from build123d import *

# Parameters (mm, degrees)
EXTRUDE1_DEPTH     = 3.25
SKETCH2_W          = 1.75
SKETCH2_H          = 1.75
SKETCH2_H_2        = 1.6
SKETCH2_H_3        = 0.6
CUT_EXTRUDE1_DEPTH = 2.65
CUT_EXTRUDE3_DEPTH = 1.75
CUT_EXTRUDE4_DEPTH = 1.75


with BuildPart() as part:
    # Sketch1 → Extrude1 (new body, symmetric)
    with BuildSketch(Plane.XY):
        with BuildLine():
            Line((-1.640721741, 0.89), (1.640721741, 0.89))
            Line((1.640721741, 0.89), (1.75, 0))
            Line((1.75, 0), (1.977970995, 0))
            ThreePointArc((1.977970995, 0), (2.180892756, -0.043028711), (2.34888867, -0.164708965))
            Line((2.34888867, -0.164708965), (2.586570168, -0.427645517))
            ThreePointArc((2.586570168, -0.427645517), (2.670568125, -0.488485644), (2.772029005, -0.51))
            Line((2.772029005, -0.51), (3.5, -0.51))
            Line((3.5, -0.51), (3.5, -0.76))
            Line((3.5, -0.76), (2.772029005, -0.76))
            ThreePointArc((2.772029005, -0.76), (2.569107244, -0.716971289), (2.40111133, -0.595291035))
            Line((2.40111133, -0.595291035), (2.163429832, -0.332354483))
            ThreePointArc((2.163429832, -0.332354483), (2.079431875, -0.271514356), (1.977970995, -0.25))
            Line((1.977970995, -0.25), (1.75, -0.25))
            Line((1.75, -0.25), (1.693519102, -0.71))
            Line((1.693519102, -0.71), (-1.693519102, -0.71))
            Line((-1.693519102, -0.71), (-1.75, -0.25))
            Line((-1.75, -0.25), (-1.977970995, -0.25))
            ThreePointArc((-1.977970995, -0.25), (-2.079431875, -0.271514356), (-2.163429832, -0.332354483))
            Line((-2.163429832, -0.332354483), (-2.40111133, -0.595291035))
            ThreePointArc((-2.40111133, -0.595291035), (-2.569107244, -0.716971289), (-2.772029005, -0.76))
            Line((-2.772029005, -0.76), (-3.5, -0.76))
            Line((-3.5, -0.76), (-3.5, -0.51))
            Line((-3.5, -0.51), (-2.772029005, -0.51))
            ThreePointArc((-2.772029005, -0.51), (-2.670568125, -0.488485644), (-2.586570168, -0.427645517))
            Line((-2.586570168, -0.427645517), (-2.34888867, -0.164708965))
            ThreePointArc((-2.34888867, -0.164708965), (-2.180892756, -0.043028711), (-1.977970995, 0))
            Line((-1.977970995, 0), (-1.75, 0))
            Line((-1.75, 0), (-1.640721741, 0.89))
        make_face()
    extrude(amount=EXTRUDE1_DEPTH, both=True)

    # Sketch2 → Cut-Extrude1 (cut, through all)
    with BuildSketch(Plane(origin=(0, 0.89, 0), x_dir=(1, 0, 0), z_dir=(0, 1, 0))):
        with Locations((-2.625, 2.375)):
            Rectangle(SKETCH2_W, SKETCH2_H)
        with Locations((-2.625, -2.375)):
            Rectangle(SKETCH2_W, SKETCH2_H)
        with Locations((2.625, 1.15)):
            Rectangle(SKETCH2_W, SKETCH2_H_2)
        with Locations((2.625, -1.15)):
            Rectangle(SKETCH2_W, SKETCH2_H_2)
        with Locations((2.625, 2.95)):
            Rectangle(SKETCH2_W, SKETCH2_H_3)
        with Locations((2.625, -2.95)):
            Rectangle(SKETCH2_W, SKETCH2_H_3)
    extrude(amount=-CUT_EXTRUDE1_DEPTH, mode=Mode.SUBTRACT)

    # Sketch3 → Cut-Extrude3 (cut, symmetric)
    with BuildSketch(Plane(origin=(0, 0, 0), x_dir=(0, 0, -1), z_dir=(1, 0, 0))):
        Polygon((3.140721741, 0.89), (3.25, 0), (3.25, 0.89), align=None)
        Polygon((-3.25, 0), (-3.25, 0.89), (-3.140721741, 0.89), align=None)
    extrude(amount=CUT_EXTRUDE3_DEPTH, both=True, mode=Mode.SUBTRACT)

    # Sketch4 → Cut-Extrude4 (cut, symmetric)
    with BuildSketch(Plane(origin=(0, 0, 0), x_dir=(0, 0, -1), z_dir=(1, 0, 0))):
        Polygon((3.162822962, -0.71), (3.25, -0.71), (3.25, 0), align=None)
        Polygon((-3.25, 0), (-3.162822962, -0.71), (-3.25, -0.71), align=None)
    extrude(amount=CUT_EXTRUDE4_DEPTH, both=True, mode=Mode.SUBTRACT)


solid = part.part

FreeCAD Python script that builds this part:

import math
import FreeCAD as App
import Part
import Sketcher
from FreeCAD import Vector
Q = App.Units.Quantity


def add_polygon(sketch, points):
    """Adds a closed chain of lines whose ends are joined by coincident constraints."""
    first, n = sketch.GeometryCount, len(points)
    for a, b in zip(points, points[1:] + points[:1]):
        sketch.addGeometry(Part.LineSegment(App.Vector(*a, 0), App.Vector(*b, 0)), False)
    for i in range(n):
        sketch.addConstraint(Sketcher.Constraint("Coincident", first + i, 2, first + (i + 1) % n, 1))

doc = App.newDocument("Part")
body = doc.addObject("PartDesign::Body", "Body")

sketch1 = body.newObject("Sketcher::SketchObject", "Sketch")
sketch1.AttachmentSupport = (doc.getObject("XY_Plane"), [""])
sketch1.MapMode = "FlatFace"
sketch1.addGeometry([
    Part.LineSegment(Vector(1.64, 0.89, 0), Vector(-1.64, 0.89, 0)),
    Part.LineSegment(Vector(-1.64, 0.89, 0), Vector(-1.75, 0, 0)),
    Part.LineSegment(Vector(-1.75, 0, 0), Vector(-1.98, 0, 0)),
    Part.ArcOfCircle(Part.Circle(Vector(-1.98, -0.5, 0), Vector(0, 0, 1), 0.5), math.radians(90), math.radians(138)),
    Part.LineSegment(Vector(-2.35, -0.16, 0), Vector(-2.59, -0.43, 0)),
    Part.ArcOfCircle(Part.Circle(Vector(-2.77, -0.26, 0), Vector(0, 0, 1), 0.25), math.radians(-90), math.radians(-42)),
    Part.LineSegment(Vector(-2.77, -0.51, 0), Vector(-3.5, -0.51, 0)),
    Part.LineSegment(Vector(-3.5, -0.51, 0), Vector(-3.5, -0.76, 0)),
    Part.LineSegment(Vector(-3.5, -0.76, 0), Vector(-2.77, -0.76, 0)),
    Part.ArcOfCircle(Part.Circle(Vector(-2.77, -0.26, 0), Vector(0, 0, 1), 0.5), math.radians(-90), math.radians(-42)),
    Part.LineSegment(Vector(-2.4, -0.6, 0), Vector(-2.16, -0.33, 0)),
    Part.ArcOfCircle(Part.Circle(Vector(-1.98, -0.5, 0), Vector(0, 0, 1), 0.25), math.radians(90), math.radians(138)),
    Part.LineSegment(Vector(-1.98, -0.25, 0), Vector(-1.75, -0.25, 0)),
    Part.LineSegment(Vector(-1.75, -0.25, 0), Vector(-1.69, -0.71, 0)),
    Part.LineSegment(Vector(-1.69, -0.71, 0), Vector(1.69, -0.71, 0)),
    Part.LineSegment(Vector(1.69, -0.71, 0), Vector(1.75, -0.25, 0)),
    Part.LineSegment(Vector(1.75, -0.25, 0), Vector(1.98, -0.25, 0)),
    Part.ArcOfCircle(Part.Circle(Vector(1.98, -0.5, 0), Vector(0, 0, 1), 0.25), math.radians(42), math.radians(90)),
    Part.LineSegment(Vector(2.16, -0.33, 0), Vector(2.4, -0.6, 0)),
    Part.ArcOfCircle(Part.Circle(Vector(2.77, -0.26, 0), Vector(0, 0, 1), 0.5), math.radians(-138), math.radians(-90)),
    Part.LineSegment(Vector(2.77, -0.76, 0), Vector(3.5, -0.76, 0)),
    Part.LineSegment(Vector(3.5, -0.76, 0), Vector(3.5, -0.51, 0)),
    Part.LineSegment(Vector(3.5, -0.51, 0), Vector(2.77, -0.51, 0)),
    Part.ArcOfCircle(Part.Circle(Vector(2.77, -0.26, 0), Vector(0, 0, 1), 0.25), math.radians(-138), math.radians(-90)),
    Part.LineSegment(Vector(2.59, -0.43, 0), Vector(2.35, -0.16, 0)),
    Part.ArcOfCircle(Part.Circle(Vector(1.98, -0.5, 0), Vector(0, 0, 1), 0.5), math.radians(42), math.radians(90)),
    Part.LineSegment(Vector(1.98, 0, 0), Vector(1.75, 0, 0)),
    Part.LineSegment(Vector(1.75, 0, 0), Vector(1.64, 0.89, 0)),
], False)
sketch1.addConstraint([
    Sketcher.Constraint("Coincident", 0, 2, 1, 1),
    Sketcher.Constraint("Coincident", 1, 2, 2, 1),
    Sketcher.Constraint("Tangent", 2, 2, 3, 1),
    Sketcher.Constraint("Tangent", 3, 2, 4, 1),
    Sketcher.Constraint("Tangent", 4, 2, 5, 2),
    Sketcher.Constraint("Tangent", 5, 1, 6, 1),
    Sketcher.Constraint("Coincident", 6, 2, 7, 1),
    Sketcher.Constraint("Coincident", 7, 2, 8, 1),
    Sketcher.Constraint("Tangent", 8, 2, 9, 1),
    Sketcher.Constraint("Tangent", 9, 2, 10, 1),
    Sketcher.Constraint("Tangent", 10, 2, 11, 2),
    Sketcher.Constraint("Tangent", 11, 1, 12, 1),
    Sketcher.Constraint("Coincident", 12, 2, 13, 1),
    Sketcher.Constraint("Coincident", 13, 2, 14, 1),
    Sketcher.Constraint("Coincident", 14, 2, 15, 1),
    Sketcher.Constraint("Coincident", 15, 2, 16, 1),
    Sketcher.Constraint("Tangent", 16, 2, 17, 2),
    Sketcher.Constraint("Tangent", 17, 1, 18, 1),
    Sketcher.Constraint("Tangent", 18, 2, 19, 1),
    Sketcher.Constraint("Tangent", 19, 2, 20, 1),
    Sketcher.Constraint("Coincident", 20, 2, 21, 1),
    Sketcher.Constraint("Coincident", 21, 2, 22, 1),
    Sketcher.Constraint("Tangent", 22, 2, 23, 2),
    Sketcher.Constraint("Tangent", 23, 1, 24, 1),
    Sketcher.Constraint("Tangent", 24, 2, 25, 1),
    Sketcher.Constraint("Tangent", 25, 2, 26, 1),
    Sketcher.Constraint("Coincident", 26, 2, 27, 1),
    Sketcher.Constraint("Coincident", 27, 2, 0, 1),
    Sketcher.Constraint("Horizontal", 0),
    Sketcher.Constraint("Horizontal", 2),
    Sketcher.Constraint("Horizontal", 6),
    Sketcher.Constraint("Vertical", 7),
    Sketcher.Constraint("Horizontal", 8),
    Sketcher.Constraint("Horizontal", 12),
    Sketcher.Constraint("Horizontal", 14),
    Sketcher.Constraint("Horizontal", 16),
    Sketcher.Constraint("Horizontal", 20),
    Sketcher.Constraint("Vertical", 21),
    Sketcher.Constraint("Horizontal", 22),
    Sketcher.Constraint("Horizontal", 26),
    Sketcher.Constraint("Coincident", 9, 3, 5, 3),
    Sketcher.Constraint("Coincident", 11, 3, 3, 3),
    Sketcher.Constraint("Coincident", 23, 3, 19, 3),
    Sketcher.Constraint("Coincident", 25, 3, 17, 3),
    Sketcher.Constraint("Equal", 3, 9),
    Sketcher.Constraint("Equal", 5, 11),
    Sketcher.Constraint("Equal", 11, 17),
    Sketcher.Constraint("Equal", 9, 19),
    Sketcher.Constraint("Equal", 17, 23),
    Sketcher.Constraint("Equal", 19, 25),
    Sketcher.Constraint("Symmetric", 2, 2, 25, 2, -1, 1),
    Sketcher.Constraint("Symmetric", 5, 3, 19, 3, -2),
    Sketcher.Constraint("Symmetric", 12, 2, 15, 2, -2),
    Sketcher.Constraint("Parallel", 1, 15),
    Sketcher.Constraint("Parallel", 13, 27),
    Sketcher.Constraint("Vertical", 1, 2, 12, 2),
    Sketcher.Constraint("Vertical", 15, 2, 26, 2),
    Sketcher.Constraint("Equal", 8, 20),
    Sketcher.Constraint("Equal", 13, 15),
    Sketcher.Constraint("Radius", 3, 0.5),
    Sketcher.Constraint("Angle", 1, Q("-97 deg")),
    Sketcher.Constraint("Radius", 5, 0.25),
    Sketcher.Constraint("DistanceX", 6, 2, -1, 1, 3.5),
    Sketcher.Constraint("DistanceY", 5, 3, -1, 1, 0.26),
    Sketcher.Constraint("DistanceY", -1, 1, 0, 2, 0.89),
    Sketcher.Constraint("DistanceX", 1, 2, -1, 1, 1.75),
    Sketcher.Constraint("DistanceY", 13, 2, -1, 1, 0.71),
    Sketcher.Constraint("DistanceX", 9, 3, 17, 3, 4.75),
    Sketcher.Constraint("DistanceX", 2, 2, 2, 1, 0.227971),
])
pad1 = body.newObject("PartDesign::Pad", "Pad")
pad1.Profile = sketch1
pad1.Length = 6.5
pad1.Midplane = True

sketch2 = body.newObject("Sketcher::SketchObject", "Sketch001")
sketch2.AttachmentSupport = (doc.getObject("XZ_Plane"), [""])
sketch2.MapMode = "FlatFace"
sketch2.AttachmentOffset = App.Placement(Vector(0, 0, -0.89), App.Rotation())
add_polygon(sketch2, [(-3.5, -3.2), (-3.5, -1.5), (-1.8, -1.5), (-1.8, -3.2)])
add_polygon(sketch2, [(-3.5, 1.5), (-3.5, 3.2), (-1.8, 3.2), (-1.8, 1.5)])
add_polygon(sketch2, [(1.8, -1.9), (1.8, -0.3), (3.5, -0.3), (3.5, -1.9)])
add_polygon(sketch2, [(1.8, 0.3), (1.8, 1.9), (3.5, 1.9), (3.5, 0.3)])
add_polygon(sketch2, [(1.8, -3.2), (1.8, -2.6), (3.5, -2.6), (3.5, -3.2)])
add_polygon(sketch2, [(1.8, 2.6), (1.8, 3.2), (3.5, 3.2), (3.5, 2.6)])
sketch2.addConstraint([
    Sketcher.Constraint("Vertical", 0),
    Sketcher.Constraint("Horizontal", 1),
    Sketcher.Constraint("Vertical", 2),
    Sketcher.Constraint("Horizontal", 3),
    Sketcher.Constraint("Vertical", 4),
    Sketcher.Constraint("Horizontal", 5),
    Sketcher.Constraint("Vertical", 6),
    Sketcher.Constraint("Horizontal", 7),
    Sketcher.Constraint("Vertical", 8),
    Sketcher.Constraint("Horizontal", 9),
    Sketcher.Constraint("Vertical", 10),
    Sketcher.Constraint("Horizontal", 11),
    Sketcher.Constraint("Vertical", 12),
    Sketcher.Constraint("Horizontal", 13),
    Sketcher.Constraint("Vertical", 14),
    Sketcher.Constraint("Horizontal", 15),
    Sketcher.Constraint("Vertical", 16),
    Sketcher.Constraint("Horizontal", 17),
    Sketcher.Constraint("Vertical", 18),
    Sketcher.Constraint("Horizontal", 19),
    Sketcher.Constraint("Vertical", 20),
    Sketcher.Constraint("Horizontal", 21),
    Sketcher.Constraint("Vertical", 22),
    Sketcher.Constraint("Horizontal", 23),
    Sketcher.Constraint("Symmetric", 4, 2, 18, 2, -1, 1),
    Sketcher.Constraint("Symmetric", 2, 2, 20, 2, -1, 1),
    Sketcher.Constraint("Symmetric", 3, 2, 18, 2, -2),
    Sketcher.Constraint("Symmetric", 1, 2, 6, 2, -1),
    Sketcher.Constraint("Symmetric", 11, 2, 12, 2, -1),
    Sketcher.Constraint("Symmetric", 9, 2, 14, 2, -1),
    Sketcher.Constraint("Symmetric", 17, 2, 22, 2, -1),
    Sketcher.Constraint("Vertical", 15, 2, 16, 2),
    Sketcher.Constraint("Vertical", 14, 2, 17, 2),
    Sketcher.Constraint("Vertical", 19, 2, 20, 2),
    Sketcher.Constraint("Equal", 23, 0),
    Sketcher.Constraint("DistanceY", 8, 1, 8, 2, 1.6),
    Sketcher.Constraint("DistanceY", 16, 1, 16, 2, 0.6),
    Sketcher.Constraint("DistanceY", 1, 2, 6, 2, 3.0),
    Sketcher.Constraint("DistanceY", 16, 2, 15, 2, 3.0),
    Sketcher.Constraint("DistanceX", 1, 1, 1, 2, 1.75),
    Sketcher.Constraint("DistanceX", 0, 2, -1, 1, 3.5),
])
pocket1 = body.newObject("PartDesign::Pocket", "Pocket")
pocket1.Profile = sketch2
pocket1.Type = "ThroughAll"
pocket1.Reversed = True

sketch3 = body.newObject("Sketcher::SketchObject", "Sketch002")
sketch3.AttachmentSupport = (doc.getObject("YZ_Plane"), [""])
sketch3.MapMode = "FlatFace"
add_polygon(sketch3, [(0.89, -3.14), (0, -3.25), (0.89, -3.25)])
add_polygon(sketch3, [(0.89, 3.25), (0, 3.25), (0.89, 3.14)])
sketch3.addConstraint([
    Sketcher.Constraint("Horizontal", 1),
    Sketcher.Constraint("Vertical", 2),
    Sketcher.Constraint("Horizontal", 3),
    Sketcher.Constraint("Vertical", 5),
    Sketcher.Constraint("Symmetric", 0, 2, 3, 2, -1, 1),
    Sketcher.Constraint("Symmetric", 2, 2, 4, 2, -1),
    Sketcher.Constraint("PointOnObject", 0, 2, -2),
    Sketcher.Constraint("Angle", 0, Q("-173 deg")),
    Sketcher.Constraint("DistanceX", 1, 1, 1, 2, 0.89),
    Sketcher.Constraint("DistanceY", 0, 2, 3, 2, 6.5),
])
pocket2 = body.newObject("PartDesign::Pocket", "Pocket001")
pocket2.Profile = sketch3
pocket2.Length = 3.5
pocket2.Midplane = True

sketch4 = body.newObject("Sketcher::SketchObject", "Sketch003")
sketch4.AttachmentSupport = (doc.getObject("YZ_Plane"), [""])
sketch4.MapMode = "FlatFace"
add_polygon(sketch4, [(-0.71, -3.16), (-0.71, -3.25), (0, -3.25)])
add_polygon(sketch4, [(-0.71, 3.16), (0, 3.25), (-0.71, 3.25)])
sketch4.addConstraint([
    Sketcher.Constraint("Vertical", 0),
    Sketcher.Constraint("Horizontal", 1),
    Sketcher.Constraint("Horizontal", 4),
    Sketcher.Constraint("Vertical", 5),
    Sketcher.Constraint("Symmetric", 1, 2, 3, 2, -1, 1),
    Sketcher.Constraint("Symmetric", 2, 2, 5, 2, -1),
    Sketcher.Constraint("PointOnObject", 1, 2, -2),
    Sketcher.Constraint("Angle", 2, Q("173 deg")),
    Sketcher.Constraint("DistanceX", 1, 1, 1, 2, 0.71),
    Sketcher.Constraint("DistanceY", 1, 2, 3, 2, 6.5),
])
pocket3 = body.newObject("PartDesign::Pocket", "Pocket002")
pocket3.Profile = sketch4
pocket3.Length = 3.5
pocket3.Midplane = True

doc.recompute()
